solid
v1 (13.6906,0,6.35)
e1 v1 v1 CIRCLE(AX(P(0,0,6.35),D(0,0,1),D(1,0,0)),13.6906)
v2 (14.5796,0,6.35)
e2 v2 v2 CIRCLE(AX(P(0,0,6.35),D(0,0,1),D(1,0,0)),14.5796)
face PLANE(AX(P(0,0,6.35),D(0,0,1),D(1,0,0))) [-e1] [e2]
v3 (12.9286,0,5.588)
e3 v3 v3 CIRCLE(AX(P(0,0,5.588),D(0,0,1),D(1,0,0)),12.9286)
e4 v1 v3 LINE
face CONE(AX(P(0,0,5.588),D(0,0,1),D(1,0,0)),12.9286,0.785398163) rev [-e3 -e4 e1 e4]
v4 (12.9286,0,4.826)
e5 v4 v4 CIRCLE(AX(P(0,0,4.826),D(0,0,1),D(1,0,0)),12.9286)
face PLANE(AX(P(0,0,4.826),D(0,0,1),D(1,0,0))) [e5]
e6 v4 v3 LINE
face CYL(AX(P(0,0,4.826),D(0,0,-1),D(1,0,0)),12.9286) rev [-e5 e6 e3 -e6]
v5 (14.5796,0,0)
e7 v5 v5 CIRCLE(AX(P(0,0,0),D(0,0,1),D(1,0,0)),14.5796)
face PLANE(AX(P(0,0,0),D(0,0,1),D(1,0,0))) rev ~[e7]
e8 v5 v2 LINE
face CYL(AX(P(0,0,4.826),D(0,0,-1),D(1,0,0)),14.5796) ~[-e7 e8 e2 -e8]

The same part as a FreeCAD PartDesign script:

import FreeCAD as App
import Part
import Sketcher

V = App.Vector
Q = App.Units.Quantity


def edges_at(feature, points):
    """Names of the edges that pass closest to the given points."""
    edges = feature.Shape.Edges
    near = lambda p: min(range(len(edges)), key=lambda i: edges[i].distToShape(Part.Vertex(*p))[0])
    return sorted({f"Edge{near(p) + 1}" for p in points})

doc = App.newDocument("Part")
body = doc.addObject("PartDesign::Body", "Body")

sketch1 = body.newObject("Sketcher::SketchObject", "Sketch")
sketch1.AttachmentSupport = (doc.getObject("XY_Plane"), [""])
sketch1.MapMode = "FlatFace"
sketch1.addGeometry(Part.Circle(V(0, 0, 0), V(0, 0, 1), 15), False)
sketch1.addConstraint(Sketcher.Constraint("Coincident", 0, 3, -1, 1))
sketch1.addConstraint(Sketcher.Constraint("Diameter", 0, Q("1.148 in")))
pad1 = body.newObject("PartDesign::Pad", "Pad")
pad1.Profile = sketch1
pad1.Length = Q("0.19 in")

sketch2 = body.newObject("Sketcher::SketchObject", "Sketch001")
sketch2.AttachmentSupport = (doc.getObject("XY_Plane"), [""])
sketch2.MapMode = "FlatFace"
sketch2.AttachmentOffset = App.Placement(V(0, 0, 0.19 * 25.4), App.Rotation())
sketch2.addGeometry(Part.Circle(V(0, 0, 0), V(0, 0, 1), 15), False)
sketch2.addGeometry(Part.Circle(V(0, 0, 0), V(0, 0, 1), 13), False)
sketch2.addConstraint(Sketcher.Constraint("Coincident", 0, 3, -1, 1))
sketch2.addConstraint(Sketcher.Constraint("Coincident", 1, 3, -1, 1))
sketch2.addConstraint(Sketcher.Constraint("Diameter", 0, Q("1.148 in")))
sketch2.addConstraint(Sketcher.Constraint("Diameter", 1, Q("1.018 in")))
pad2 = body.newObject("PartDesign::Pad", "Pad001")
pad2.Profile = sketch2
pad2.Length = Q("0.06 in")
doc.recompute()

chamfer = body.newObject("PartDesign::Chamfer", "Chamfer")
chamfer.Base = (pad2, edges_at(pad2, [(-12.929, 0, 6.35)]))
chamfer.Size = Q("0.03 in")

doc.recompute()
